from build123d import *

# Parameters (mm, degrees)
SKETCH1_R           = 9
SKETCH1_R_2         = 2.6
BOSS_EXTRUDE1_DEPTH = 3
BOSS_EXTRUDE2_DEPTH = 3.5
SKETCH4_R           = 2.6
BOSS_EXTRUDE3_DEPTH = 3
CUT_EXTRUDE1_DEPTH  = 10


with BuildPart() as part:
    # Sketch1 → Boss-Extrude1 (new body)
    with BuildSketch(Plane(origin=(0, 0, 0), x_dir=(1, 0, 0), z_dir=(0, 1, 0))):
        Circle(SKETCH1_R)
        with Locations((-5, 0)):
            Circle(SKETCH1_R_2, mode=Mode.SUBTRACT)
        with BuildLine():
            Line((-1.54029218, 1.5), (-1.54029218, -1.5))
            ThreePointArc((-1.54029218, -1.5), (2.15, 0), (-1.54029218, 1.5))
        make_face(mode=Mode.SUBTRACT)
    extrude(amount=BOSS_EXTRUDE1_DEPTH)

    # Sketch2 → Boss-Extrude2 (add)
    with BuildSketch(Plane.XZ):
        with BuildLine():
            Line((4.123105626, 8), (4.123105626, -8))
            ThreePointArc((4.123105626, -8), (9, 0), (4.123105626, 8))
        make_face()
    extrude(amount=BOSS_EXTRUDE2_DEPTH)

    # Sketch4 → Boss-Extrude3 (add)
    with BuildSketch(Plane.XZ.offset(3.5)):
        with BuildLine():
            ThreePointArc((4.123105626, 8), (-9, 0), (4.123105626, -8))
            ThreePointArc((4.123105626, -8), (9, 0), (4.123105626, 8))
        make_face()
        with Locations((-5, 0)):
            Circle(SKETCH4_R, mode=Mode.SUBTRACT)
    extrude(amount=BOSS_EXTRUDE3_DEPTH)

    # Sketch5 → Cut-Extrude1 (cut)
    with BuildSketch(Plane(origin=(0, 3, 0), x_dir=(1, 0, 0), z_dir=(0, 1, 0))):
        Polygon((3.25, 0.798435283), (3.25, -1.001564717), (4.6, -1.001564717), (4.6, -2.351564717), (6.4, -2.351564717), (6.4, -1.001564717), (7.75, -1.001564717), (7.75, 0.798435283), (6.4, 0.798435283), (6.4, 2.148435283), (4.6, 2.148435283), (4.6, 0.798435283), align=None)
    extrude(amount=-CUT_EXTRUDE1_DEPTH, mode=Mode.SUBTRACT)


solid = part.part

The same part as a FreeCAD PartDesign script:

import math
import FreeCAD as App
import Part
import Sketcher

doc = App.newDocument("Part")
body = doc.addObject("PartDesign::Body", "Body")

# Sketch on XZ plane
sketch1 = body.newObject("Sketcher::SketchObject", "Sketch")
sketch1.AttachmentSupport = (doc.getObject("XZ_Plane"), [""])
sketch1.MapMode = "FlatFace"
sketch1.addGeometry([
    Part.Circle(App.Vector(0, 0, 0), App.Vector(0, 0, 1), 9),
    Part.Circle(App.Vector(-5, 0, 0), App.Vector(0, 0, 1), 2.6),
    Part.LineSegment(App.Vector(-1.5, 1.5, 0), App.Vector(-1.5, -1.5, 0)),
    Part.ArcOfCircle(Part.Circle(App.Vector(0, 0, 0), App.Vector(0, 0, 1), 2.1), math.radians(-136), math.radians(136)),
], False)
sketch1.addConstraint([
    Sketcher.Constraint("Coincident", 2, 1, 3, 2),
    Sketcher.Constraint("Coincident", 3, 1, 2, 2),
    Sketcher.Constraint("Vertical", 2),
    Sketcher.Constraint("Coincident", 0, 3, -1, 1),
    Sketcher.Constraint("Coincident", 3, 3, -1, 1),
    Sketcher.Constraint("PointOnObject", 1, 3, -1),
    Sketcher.Constraint("Diameter", 0, 18.0),
    Sketcher.Constraint("Diameter", 1, 5.2),
    Sketcher.Constraint("DistanceY", 2, 2, 2, 1, 3.0),
    Sketcher.Constraint("Radius", 3, 2.15),
    Sketcher.Constraint("DistanceX", 1, 3, -1, 1, 5.0),
])
pad1 = body.newObject("PartDesign::Pad", "Pad")
pad1.Profile = sketch1
pad1.Length = 3
pad1.Reversed = True

# Sketch on XZ plane
sketch2 = body.newObject("Sketcher::SketchObject", "Sketch001")
sketch2.AttachmentSupport = (doc.getObject("XZ_Plane"), [""])
sketch2.MapMode = "FlatFace"
sketch2.addGeometry([
    Part.LineSegment(App.Vector(4, 8, 0), App.Vector(4, -8, 0)),
    Part.ArcOfCircle(Part.Circle(App.Vector(0, 0, 0), App.Vector(0, 0, 1), 9), math.radians(-63), math.radians(63)),
], False)
sketch2.addConstraint([
    Sketcher.Constraint("Coincident", 0, 1, 1, 2),
    Sketcher.Constraint("Coincident", 1, 1, 0, 2),
    Sketcher.Constraint("Vertical", 0),
    Sketcher.Constraint("Coincident", 1, 3, -1, 1),
    Sketcher.Constraint("Radius", 1, 9.0),
    Sketcher.Constraint("DistanceY", 0, 2, 0, 1, 16.0),
])
pad2 = body.newObject("PartDesign::Pad", "Pad001")
pad2.Profile = sketch2
pad2.Length = 3.5

# Sketch on XZ plane
sketch3 = body.newObject("Sketcher::SketchObject", "Sketch002")
sketch3.AttachmentSupport = (doc.getObject("XZ_Plane"), [""])
sketch3.MapMode = "FlatFace"
sketch3.AttachmentOffset = App.Placement(App.Vector(0, 0, 3.5), App.Rotation())
sketch3.addGeometry([
    Part.ArcOfCircle(Part.Circle(App.Vector(0, 0, 0), App.Vector(0, 0, 1), 9), math.radians(63), math.radians(297)),
    Part.ArcOfCircle(Part.Circle(App.Vector(0, 0, 0), App.Vector(0, 0, 1), 9), math.radians(-63), math.radians(63)),
    Part.Circle(App.Vector(-5, 0, 0), App.Vector(0, 0, 1), 2.6),
], False)
sketch3.addConstraint([
    Sketcher.Constraint("Tangent", 0, 1, 1, 2),
    Sketcher.Constraint("Coincident", 1, 1, 0, 2),
    Sketcher.Constraint("Coincident", 0, 3, -1, 1),
    Sketcher.Constraint("PointOnObject", 2, 3, -1),
    Sketcher.Constraint("Vertical", 0, 1, 1, 1),
    Sketcher.Constraint("Radius", 0, 9.0),
    Sketcher.Constraint("Diameter", 2, 5.2),
    Sketcher.Constraint("DistanceX", 2, 3, -1, 1, 5.0),
    Sketcher.Constraint("DistanceY", -1, 1, 0, 1, 8.0),
])
pad3 = body.newObject("PartDesign::Pad", "Pad002")
pad3.Profile = sketch3
pad3.Length = 3

# Sketch on XZ plane
sketch4 = body.newObject("Sketcher::SketchObject", "Sketch003")
sketch4.AttachmentSupport = (doc.getObject("XZ_Plane"), [""])
sketch4.MapMode = "FlatFace"
sketch4.AttachmentOffset = App.Placement(App.Vector(0, 0, -3), App.Rotation())
sketch4.addGeometry([
    Part.LineSegment(App.Vector(3.2, -0.8, 0), App.Vector(3.2, 1, 0)),  # 0
    Part.LineSegment(App.Vector(3.2, 1, 0), App.Vector(4.6, 1, 0)),  # 1
    Part.LineSegment(App.Vector(4.6, 1, 0), App.Vector(4.6, 2.4, 0)),  # 2
    Part.LineSegment(App.Vector(4.6, 2.4, 0), App.Vector(6.4, 2.4, 0)),  # 3
    Part.LineSegment(App.Vector(6.4, 2.4, 0), App.Vector(6.4, 1, 0)),  # 4
    Part.LineSegment(App.Vector(6.4, 1, 0), App.Vector(7.8, 1, 0)),  # 5
    Part.LineSegment(App.Vector(7.8, 1, 0), App.Vector(7.8, -0.8, 0)),  # 6
    Part.LineSegment(App.Vector(7.8, -0.8, 0), App.Vector(6.4, -0.8, 0)),  # 7
    Part.LineSegment(App.Vector(6.4, -0.8, 0), App.Vector(6.4, -2.1, 0)),  # 8
    Part.LineSegment(App.Vector(6.4, -2.1, 0), App.Vector(4.6, -2.1, 0)),  # 9
    Part.LineSegment(App.Vector(4.6, -2.1, 0), App.Vector(4.6, -0.8, 0)),  # 10
    Part.LineSegment(App.Vector(4.6, -0.8, 0), App.Vector(3.2, -0.8, 0)),  # 11
], False)
sketch4.addConstraint([
    Sketcher.Constraint("Coincident", 0, 2, 1, 1),
    Sketcher.Constraint("Coincident", 1, 2, 2, 1),
    Sketcher.Constraint("Coincident", 2, 2, 3, 1),
    Sketcher.Constraint("Coincident", 3, 2, 4, 1),
    Sketcher.Constraint("Coincident", 4, 2, 5, 1),
    Sketcher.Constraint("Coincident", 5, 2, 6, 1),
    Sketcher.Constraint("Coincident", 6, 2, 7, 1),
    Sketcher.Constraint("Coincident", 7, 2, 8, 1),
    Sketcher.Constraint("Coincident", 8, 2, 9, 1),
    Sketcher.Constraint("Coincident", 9, 2, 10, 1),
    Sketcher.Constraint("Coincident", 10, 2, 11, 1),
    Sketcher.Constraint("Coincident", 11, 2, 0, 1),
    Sketcher.Constraint("Vertical", 0),
    Sketcher.Constraint("Horizontal", 1),
    Sketcher.Constraint("Vertical", 2),
    Sketcher.Constraint("Horizontal", 3),
    Sketcher.Constraint("Vertical", 4),
    Sketcher.Constraint("Horizontal", 5),
    Sketcher.Constraint("Vertical", 6),
    Sketcher.Constraint("Horizontal", 7),
    Sketcher.Constraint("Vertical", 8),
    Sketcher.Constraint("Horizontal", 9),
    Sketcher.Constraint("Vertical", 10),
    Sketcher.Constraint("Horizontal", 11),
    Sketcher.Constraint("Horizontal", 1, 2, 4, 2),
    Sketcher.Constraint("Horizontal", 7, 2, 10, 2),
    Sketcher.Constraint("Vertical", 4, 2, 7, 2),
    Sketcher.Constraint("Vertical", 2, 2, 9, 2),
    Sketcher.Constraint("Equal", 1, 5),
    Sketcher.Constraint("Equal", 9, 0),
    Sketcher.Constraint("Equal", 11, 2),
    Sketcher.Constraint("Equal", 4, 8),
    Sketcher.Constraint("DistanceX", 3, 1, 3, 2, 1.8),
    Sketcher.Constraint("DistanceX", 1, 1, 1, 2, 1.35),
    Sketcher.Constraint("DistanceX", -1, 1, 1, 2, 4.6),
    Sketcher.Constraint("DistanceY", -1, 1, 0, 2, 1.001565),
])
pocket1 = body.newObject("PartDesign::Pocket", "Pocket")
pocket1.Profile = sketch4
pocket1.Length = 10
pocket1.Reversed = True

doc.recompute()
